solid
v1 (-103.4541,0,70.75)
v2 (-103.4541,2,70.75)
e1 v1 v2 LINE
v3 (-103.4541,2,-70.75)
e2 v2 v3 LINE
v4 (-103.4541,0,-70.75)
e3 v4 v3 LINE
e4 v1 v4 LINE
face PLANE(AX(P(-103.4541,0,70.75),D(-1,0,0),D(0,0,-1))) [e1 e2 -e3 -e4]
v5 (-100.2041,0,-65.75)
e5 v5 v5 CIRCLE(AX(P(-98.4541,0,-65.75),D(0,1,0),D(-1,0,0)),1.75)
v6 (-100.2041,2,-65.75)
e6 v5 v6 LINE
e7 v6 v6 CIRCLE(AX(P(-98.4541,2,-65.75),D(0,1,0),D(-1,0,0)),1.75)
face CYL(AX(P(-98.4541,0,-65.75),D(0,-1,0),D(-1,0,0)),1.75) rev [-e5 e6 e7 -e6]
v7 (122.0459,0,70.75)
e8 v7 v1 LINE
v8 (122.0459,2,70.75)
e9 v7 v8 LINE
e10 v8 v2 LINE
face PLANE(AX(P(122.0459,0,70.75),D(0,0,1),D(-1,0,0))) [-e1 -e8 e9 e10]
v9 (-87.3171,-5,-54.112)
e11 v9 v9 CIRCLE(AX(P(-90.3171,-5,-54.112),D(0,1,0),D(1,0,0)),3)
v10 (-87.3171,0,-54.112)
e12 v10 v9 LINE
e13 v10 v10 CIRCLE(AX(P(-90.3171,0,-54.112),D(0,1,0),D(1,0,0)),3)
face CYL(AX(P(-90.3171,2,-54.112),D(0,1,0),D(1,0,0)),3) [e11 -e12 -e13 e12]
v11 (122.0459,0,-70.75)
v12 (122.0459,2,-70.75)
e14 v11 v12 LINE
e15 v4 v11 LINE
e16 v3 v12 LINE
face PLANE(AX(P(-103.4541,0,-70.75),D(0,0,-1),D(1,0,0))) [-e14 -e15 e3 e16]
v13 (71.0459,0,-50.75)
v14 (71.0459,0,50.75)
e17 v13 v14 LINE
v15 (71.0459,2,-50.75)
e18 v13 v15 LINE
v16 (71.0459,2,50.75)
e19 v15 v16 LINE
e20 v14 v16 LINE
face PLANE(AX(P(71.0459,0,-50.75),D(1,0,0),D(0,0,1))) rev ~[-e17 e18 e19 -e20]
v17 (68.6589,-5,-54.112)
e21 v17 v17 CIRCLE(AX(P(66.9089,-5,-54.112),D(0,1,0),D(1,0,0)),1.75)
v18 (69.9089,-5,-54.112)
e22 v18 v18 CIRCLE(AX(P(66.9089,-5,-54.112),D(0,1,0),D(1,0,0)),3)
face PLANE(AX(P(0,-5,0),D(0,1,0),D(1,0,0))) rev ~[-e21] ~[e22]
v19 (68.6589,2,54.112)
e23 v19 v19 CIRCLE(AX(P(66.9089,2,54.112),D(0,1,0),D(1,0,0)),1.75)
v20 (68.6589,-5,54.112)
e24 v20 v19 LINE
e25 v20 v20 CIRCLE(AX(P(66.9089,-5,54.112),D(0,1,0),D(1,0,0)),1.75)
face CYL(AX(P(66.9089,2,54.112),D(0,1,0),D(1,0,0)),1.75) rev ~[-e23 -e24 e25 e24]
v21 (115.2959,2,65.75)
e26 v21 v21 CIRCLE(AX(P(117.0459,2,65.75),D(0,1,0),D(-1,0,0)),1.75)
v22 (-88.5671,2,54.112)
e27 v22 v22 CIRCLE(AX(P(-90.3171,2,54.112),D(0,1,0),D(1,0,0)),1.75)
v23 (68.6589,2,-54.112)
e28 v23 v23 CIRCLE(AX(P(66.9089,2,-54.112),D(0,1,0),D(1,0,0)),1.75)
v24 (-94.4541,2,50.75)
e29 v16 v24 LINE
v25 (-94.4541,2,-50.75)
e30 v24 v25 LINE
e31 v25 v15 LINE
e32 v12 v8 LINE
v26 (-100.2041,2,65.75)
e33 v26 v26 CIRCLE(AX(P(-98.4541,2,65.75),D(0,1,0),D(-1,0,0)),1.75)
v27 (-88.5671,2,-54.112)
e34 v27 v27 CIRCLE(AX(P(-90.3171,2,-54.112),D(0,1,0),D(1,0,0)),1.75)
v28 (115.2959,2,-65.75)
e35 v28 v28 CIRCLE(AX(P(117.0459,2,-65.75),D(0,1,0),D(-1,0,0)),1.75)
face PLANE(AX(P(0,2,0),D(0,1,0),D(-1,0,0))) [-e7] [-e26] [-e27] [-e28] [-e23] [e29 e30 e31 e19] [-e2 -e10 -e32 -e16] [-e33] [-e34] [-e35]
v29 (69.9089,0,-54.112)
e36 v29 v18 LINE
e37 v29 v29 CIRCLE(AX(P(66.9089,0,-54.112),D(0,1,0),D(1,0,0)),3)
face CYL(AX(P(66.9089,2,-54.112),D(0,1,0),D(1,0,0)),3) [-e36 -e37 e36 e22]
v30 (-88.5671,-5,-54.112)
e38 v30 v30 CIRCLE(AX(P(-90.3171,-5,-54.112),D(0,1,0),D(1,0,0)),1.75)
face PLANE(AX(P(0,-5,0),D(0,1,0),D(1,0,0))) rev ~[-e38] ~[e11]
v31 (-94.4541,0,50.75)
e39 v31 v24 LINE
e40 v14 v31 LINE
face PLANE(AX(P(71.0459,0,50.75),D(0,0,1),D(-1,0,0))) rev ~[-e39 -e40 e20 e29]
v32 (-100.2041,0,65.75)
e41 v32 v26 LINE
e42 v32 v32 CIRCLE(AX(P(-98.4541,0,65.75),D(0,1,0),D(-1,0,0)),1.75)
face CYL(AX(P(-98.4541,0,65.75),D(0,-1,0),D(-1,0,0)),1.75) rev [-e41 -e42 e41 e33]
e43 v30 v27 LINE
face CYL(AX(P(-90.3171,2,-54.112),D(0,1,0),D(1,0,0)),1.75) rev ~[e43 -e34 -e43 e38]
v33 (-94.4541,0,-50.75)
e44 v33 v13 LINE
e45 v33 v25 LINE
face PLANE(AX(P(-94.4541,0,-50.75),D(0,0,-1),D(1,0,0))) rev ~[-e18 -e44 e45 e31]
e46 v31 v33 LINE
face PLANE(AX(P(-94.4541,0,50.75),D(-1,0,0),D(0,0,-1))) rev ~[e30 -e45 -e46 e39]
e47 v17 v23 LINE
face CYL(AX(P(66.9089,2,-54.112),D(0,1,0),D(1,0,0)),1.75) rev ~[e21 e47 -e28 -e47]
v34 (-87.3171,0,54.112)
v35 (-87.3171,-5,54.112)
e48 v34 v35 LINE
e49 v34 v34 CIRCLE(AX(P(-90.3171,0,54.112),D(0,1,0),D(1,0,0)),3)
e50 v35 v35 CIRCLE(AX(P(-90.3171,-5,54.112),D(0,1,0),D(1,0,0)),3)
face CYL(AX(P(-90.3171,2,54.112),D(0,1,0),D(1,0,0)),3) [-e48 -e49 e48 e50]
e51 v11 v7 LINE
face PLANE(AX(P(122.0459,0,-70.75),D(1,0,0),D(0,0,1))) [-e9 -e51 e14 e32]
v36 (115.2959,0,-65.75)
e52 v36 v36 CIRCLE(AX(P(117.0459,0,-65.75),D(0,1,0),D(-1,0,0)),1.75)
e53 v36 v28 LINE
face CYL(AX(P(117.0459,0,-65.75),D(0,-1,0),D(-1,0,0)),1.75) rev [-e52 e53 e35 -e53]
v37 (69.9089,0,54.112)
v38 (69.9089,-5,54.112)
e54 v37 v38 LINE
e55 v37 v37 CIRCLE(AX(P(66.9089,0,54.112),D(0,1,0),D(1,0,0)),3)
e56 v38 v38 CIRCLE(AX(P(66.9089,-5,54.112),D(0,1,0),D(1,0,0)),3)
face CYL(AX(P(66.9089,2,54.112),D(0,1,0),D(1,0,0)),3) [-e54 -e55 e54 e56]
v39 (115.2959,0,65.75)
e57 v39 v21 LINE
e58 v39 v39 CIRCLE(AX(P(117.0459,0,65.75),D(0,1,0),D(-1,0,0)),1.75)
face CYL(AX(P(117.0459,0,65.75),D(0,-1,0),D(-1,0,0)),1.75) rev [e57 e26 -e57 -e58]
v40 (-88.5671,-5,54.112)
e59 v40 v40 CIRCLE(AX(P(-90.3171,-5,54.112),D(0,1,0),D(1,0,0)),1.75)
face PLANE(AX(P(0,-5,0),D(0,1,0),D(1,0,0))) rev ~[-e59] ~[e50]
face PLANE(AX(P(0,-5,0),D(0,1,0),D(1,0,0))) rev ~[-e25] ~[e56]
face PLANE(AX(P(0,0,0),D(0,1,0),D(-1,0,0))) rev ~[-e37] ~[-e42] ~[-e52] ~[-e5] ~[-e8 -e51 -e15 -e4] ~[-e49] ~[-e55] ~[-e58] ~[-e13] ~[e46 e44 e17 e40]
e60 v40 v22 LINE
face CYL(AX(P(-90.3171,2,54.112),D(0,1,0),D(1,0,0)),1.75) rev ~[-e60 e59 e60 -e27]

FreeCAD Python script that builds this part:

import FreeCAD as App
import Part
import Sketcher
from FreeCAD import Vector

doc = App.newDocument("Part")
params = doc.addObject("Spreadsheet::Sheet", "Params")
for row, (alias, value) in enumerate([
    ("sketch1_diameter", "3.5 mm"),
    ("sketch1_width", "225.5 mm"),
    ("sketch1_width2", "165.5 mm"),
    ("sketch1_height", "101.5 mm"),
    ("pad1_length", "2 mm"),
    ("sketch2_diameter", "3.5 mm"),
    ("pocket1_length", "2 mm"),
    ("sketch3_diameter", "6 mm"),
    ("sketch3_diameter2", "3.5 mm"),
    ("pad2_length", "7 mm"),
], start=1):
    params.set(f"A{row}", alias)
    params.set(f"B{row}", "=" + value)
    params.setAlias(f"B{row}", alias)

body = doc.addObject("PartDesign::Body", "Body")

# Sketch on XZ plane
sketch1 = body.newObject("Sketcher::SketchObject", "Sketch")
sketch1.AttachmentSupport = (doc.getObject("XZ_Plane"), [""])
sketch1.MapMode = "FlatFace"
sketch1.addGeometry(Part.LineSegment(Vector(122, -70.8, 0), Vector(-103.5, -70.8, 0)), False)
sketch1.addGeometry(Part.LineSegment(Vector(-103.5, -70.8, 0), Vector(-103.5, 70.8, 0)), False)
sketch1.addGeometry(Part.LineSegment(Vector(-103.5, 70.8, 0), Vector(122, 70.8, 0)), False)
sketch1.addGeometry(Part.LineSegment(Vector(122, 70.8, 0), Vector(122, -70.8, 0)), False)
sketch1.addGeometry(Part.Circle(Vector(117, -65.8, 0), Vector(0, 0, 1), 1.8), False)
sketch1.addGeometry(Part.Circle(Vector(-98.5, -65.8, 0), Vector(0, 0, 1), 1.8), False)
sketch1.addGeometry(Part.Circle(Vector(117, 65.8, 0), Vector(0, 0, 1), 1.8), False)
sketch1.addGeometry(Part.LineSegment(Vector(-94.5, 50.8, 0), Vector(-94.5, -50.8, 0)), False)
sketch1.addGeometry(Part.LineSegment(Vector(-94.5, -50.8, 0), Vector(71, -50.8, 0)), False)
sketch1.addGeometry(Part.LineSegment(Vector(71, -50.8, 0), Vector(71, 50.8, 0)), False)
sketch1.addGeometry(Part.LineSegment(Vector(71, 50.8, 0), Vector(-94.5, 50.8, 0)), False)
sketch1.addGeometry(Part.Circle(Vector(-98.5, 65.8, 0), Vector(0, 0, 1), 1.8), False)
sketch1.addConstraint(Sketcher.Constraint("Coincident", 0, 2, 1, 1))
sketch1.addConstraint(Sketcher.Constraint("Coincident", 1, 2, 2, 1))
sketch1.addConstraint(Sketcher.Constraint("Coincident", 2, 2, 3, 1))
sketch1.addConstraint(Sketcher.Constraint("Coincident", 3, 2, 0, 1))
sketch1.addConstraint(Sketcher.Constraint("Coincident", 7, 2, 8, 1))
sketch1.addConstraint(Sketcher.Constraint("Coincident", 8, 2, 9, 1))
sketch1.addConstraint(Sketcher.Constraint("Coincident", 9, 2, 10, 1))
sketch1.addConstraint(Sketcher.Constraint("Coincident", 10, 2, 7, 1))
sketch1.addConstraint(Sketcher.Constraint("Horizontal", 0))
sketch1.addConstraint(Sketcher.Constraint("Vertical", 1))
sketch1.addConstraint(Sketcher.Constraint("Horizontal", 2))
sketch1.addConstraint(Sketcher.Constraint("Vertical", 3))
sketch1.addConstraint(Sketcher.Constraint("Vertical", 7))
sketch1.addConstraint(Sketcher.Constraint("Horizontal", 8))
sketch1.addConstraint(Sketcher.Constraint("Vertical", 9))
sketch1.addConstraint(Sketcher.Constraint("Horizontal", 10))
sketch1.addConstraint(Sketcher.Constraint("Equal", 4, 5))
sketch1.addConstraint(Sketcher.Constraint("Equal", 5, 6))
sketch1.addConstraint(Sketcher.Constraint("Equal", 6, 11))
sketch1.addConstraint(Sketcher.Constraint("Symmetric", 4, 3, 6, 3, -1))
sketch1.addConstraint(Sketcher.Constraint("Symmetric", 5, 3, 11, 3, -1))
sketch1.addConstraint(Sketcher.Constraint("Horizontal", 4, 3, 5, 3))
sketch1.addConstraint(Sketcher.Constraint("Diameter", 4, 3.5))
sketch1.addConstraint(Sketcher.Constraint("DistanceX", 0, 2, 0, 1, 225.5))
sketch1.addConstraint(Sketcher.Constraint("DistanceX", 8, 1, 8, 2, 165.5))
sketch1.addConstraint(Sketcher.Constraint("DistanceY", 7, 2, 7, 1, 101.5))
sketch1.addConstraint(Sketcher.Constraint("DistanceX", 0, 2, 5, 3, 5.0))
sketch1.addConstraint(Sketcher.Constraint("DistanceY", 0, 2, 5, 3, 5.0))
sketch1.addConstraint(Sketcher.Constraint("DistanceY", 11, 3, 1, 2, 5.0))
sketch1.addConstraint(Sketcher.Constraint("DistanceX", 6, 3, 2, 2, 5.0))
sketch1.addConstraint(Sketcher.Constraint("DistanceX", 0, 2, 7, 2, 9.0))
sketch1.addConstraint(Sketcher.Constraint("DistanceY", 0, 2, 7, 2, 20.0))
sketch1.addConstraint(Sketcher.Constraint("DistanceY", 9, 2, 2, 2, 20.0))
sketch1.addConstraint(Sketcher.Constraint("DistanceX", -1, 1, 4, 3, 117.046))
sketch1.setExpression("Constraints[22]", "Params.sketch1_diameter")
sketch1.setExpression("Constraints[23]", "Params.sketch1_width")
sketch1.setExpression("Constraints[24]", "Params.sketch1_width2")
sketch1.setExpression("Constraints[25]", "Params.sketch1_height")
pad1 = body.newObject("PartDesign::Pad", "Pad")
pad1.Profile = sketch1
pad1.setExpression("Length", "Params.pad1_length")
pad1.Reversed = True

# Sketch on XZ plane
sketch2 = body.newObject("Sketcher::SketchObject", "Sketch001")
sketch2.AttachmentSupport = (doc.getObject("XZ_Plane"), [""])
sketch2.MapMode = "FlatFace"
sketch2.AttachmentOffset = App.Placement(Vector(0, 0, -2), App.Rotation())
sketch2.addGeometry(Part.Circle(Vector(-90.3, -54.1, 0), Vector(0, 0, 1), 1.8), False)
sketch2.addGeometry(Part.Circle(Vector(66.9, -54.1, 0), Vector(0, 0, 1), 1.8), False)
sketch2.addGeometry(Part.Circle(Vector(-90.3, 54.1, 0), Vector(0, 0, 1), 1.8), False)
sketch2.addGeometry(Part.Circle(Vector(66.9, 54.1, 0), Vector(0, 0, 1), 1.8), False)
sketch2.addConstraint(Sketcher.Constraint("Equal", 0, 1))
sketch2.addConstraint(Sketcher.Constraint("Equal", 1, 2))
sketch2.addConstraint(Sketcher.Constraint("Equal", 2, 3))
sketch2.addConstraint(Sketcher.Constraint("Symmetric", 0, 3, 2, 3, -1))
sketch2.addConstraint(Sketcher.Constraint("Symmetric", 1, 3, 3, 3, -1))
sketch2.addConstraint(Sketcher.Constraint("Horizontal", 0, 3, 1, 3))
sketch2.addConstraint(Sketcher.Constraint("Diameter", 0, 3.5))
sketch2.addConstraint(Sketcher.Constraint("DistanceX", 0, 3, 1, 3, 157.226))
sketch2.addConstraint(Sketcher.Constraint("DistanceY", 0, 3, 2, 3, 108.224))
sketch2.addConstraint(Sketcher.Constraint("DistanceX", 0, 3, -1, 1, 90.317))
sketch2.setExpression("Constraints[6]", "Params.sketch2_diameter")
pocket1 = body.newObject("PartDesign::Pocket", "Pocket")
pocket1.Profile = sketch2
pocket1.setExpression("Length", "Params.pocket1_length")
pocket1.Reversed = True

# Sketch on XZ plane
sketch3 = body.newObject("Sketcher::SketchObject", "Sketch002")
sketch3.AttachmentSupport = (doc.getObject("XZ_Plane"), [""])
sketch3.MapMode = "FlatFace"
sketch3.AttachmentOffset = App.Placement(Vector(0, 0, -2), App.Rotation())
sketch3.addGeometry(Part.Circle(Vector(-90.3, -54.1, 0), Vector(0, 0, 1), 3), False)
sketch3.addGeometry(Part.Circle(Vector(-90.3, -54.1, 0), Vector(0, 0, 1), 1.8), False)
sketch3.addGeometry(Part.Circle(Vector(66.9, -54.1, 0), Vector(0, 0, 1), 3), False)
sketch3.addGeometry(Part.Circle(Vector(66.9, -54.1, 0), Vector(0, 0, 1), 1.8), False)
sketch3.addGeometry(Part.Circle(Vector(-90.3, 54.1, 0), Vector(0, 0, 1), 3), False)
sketch3.addGeometry(Part.Circle(Vector(-90.3, 54.1, 0), Vector(0, 0, 1), 1.8), False)
sketch3.addGeometry(Part.Circle(Vector(66.9, 54.1, 0), Vector(0, 0, 1), 3), False)
sketch3.addGeometry(Part.Circle(Vector(66.9, 54.1, 0), Vector(0, 0, 1), 1.8), False)
sketch3.addConstraint(Sketcher.Constraint("Coincident", 1, 3, 0, 3))
sketch3.addConstraint(Sketcher.Constraint("Coincident", 3, 3, 2, 3))
sketch3.addConstraint(Sketcher.Constraint("Coincident", 5, 3, 4, 3))
sketch3.addConstraint(Sketcher.Constraint("Coincident", 7, 3, 6, 3))
sketch3.addConstraint(Sketcher.Constraint("Equal", 0, 2))
sketch3.addConstraint(Sketcher.Constraint("Equal", 1, 3))
sketch3.addConstraint(Sketcher.Constraint("Equal", 2, 4))
sketch3.addConstraint(Sketcher.Constraint("Equal", 3, 5))
sketch3.addConstraint(Sketcher.Constraint("Equal", 4, 6))
sketch3.addConstraint(Sketcher.Constraint("Equal", 5, 7))
sketch3.addConstraint(Sketcher.Constraint("Symmetric", 0, 3, 4, 3, -1))
sketch3.addConstraint(Sketcher.Constraint("Symmetric", 2, 3, 6, 3, -1))
sketch3.addConstraint(Sketcher.Constraint("Horizontal", 1, 3, 2, 3))
sketch3.addConstraint(Sketcher.Constraint("Diameter", 0, 6.0))
sketch3.addConstraint(Sketcher.Constraint("Diameter", 1, 3.5))
sketch3.addConstraint(Sketcher.Constraint("DistanceX", 0, 3, -1, 1, 90.317))
sketch3.addConstraint(Sketcher.Constraint("DistanceY", 0, 3, -1, 1, 54.112))
sketch3.addConstraint(Sketcher.Constraint("DistanceX", -1, 1, 2, 3, 66.909))
sketch3.setExpression("Constraints[13]", "Params.sketch3_diameter")
sketch3.setExpression("Constraints[14]", "Params.sketch3_diameter2")
pad2 = body.newObject("PartDesign::Pad", "Pad001")
pad2.Profile = sketch3
pad2.setExpression("Length", "Params.pad2_length")

doc.recompute()
